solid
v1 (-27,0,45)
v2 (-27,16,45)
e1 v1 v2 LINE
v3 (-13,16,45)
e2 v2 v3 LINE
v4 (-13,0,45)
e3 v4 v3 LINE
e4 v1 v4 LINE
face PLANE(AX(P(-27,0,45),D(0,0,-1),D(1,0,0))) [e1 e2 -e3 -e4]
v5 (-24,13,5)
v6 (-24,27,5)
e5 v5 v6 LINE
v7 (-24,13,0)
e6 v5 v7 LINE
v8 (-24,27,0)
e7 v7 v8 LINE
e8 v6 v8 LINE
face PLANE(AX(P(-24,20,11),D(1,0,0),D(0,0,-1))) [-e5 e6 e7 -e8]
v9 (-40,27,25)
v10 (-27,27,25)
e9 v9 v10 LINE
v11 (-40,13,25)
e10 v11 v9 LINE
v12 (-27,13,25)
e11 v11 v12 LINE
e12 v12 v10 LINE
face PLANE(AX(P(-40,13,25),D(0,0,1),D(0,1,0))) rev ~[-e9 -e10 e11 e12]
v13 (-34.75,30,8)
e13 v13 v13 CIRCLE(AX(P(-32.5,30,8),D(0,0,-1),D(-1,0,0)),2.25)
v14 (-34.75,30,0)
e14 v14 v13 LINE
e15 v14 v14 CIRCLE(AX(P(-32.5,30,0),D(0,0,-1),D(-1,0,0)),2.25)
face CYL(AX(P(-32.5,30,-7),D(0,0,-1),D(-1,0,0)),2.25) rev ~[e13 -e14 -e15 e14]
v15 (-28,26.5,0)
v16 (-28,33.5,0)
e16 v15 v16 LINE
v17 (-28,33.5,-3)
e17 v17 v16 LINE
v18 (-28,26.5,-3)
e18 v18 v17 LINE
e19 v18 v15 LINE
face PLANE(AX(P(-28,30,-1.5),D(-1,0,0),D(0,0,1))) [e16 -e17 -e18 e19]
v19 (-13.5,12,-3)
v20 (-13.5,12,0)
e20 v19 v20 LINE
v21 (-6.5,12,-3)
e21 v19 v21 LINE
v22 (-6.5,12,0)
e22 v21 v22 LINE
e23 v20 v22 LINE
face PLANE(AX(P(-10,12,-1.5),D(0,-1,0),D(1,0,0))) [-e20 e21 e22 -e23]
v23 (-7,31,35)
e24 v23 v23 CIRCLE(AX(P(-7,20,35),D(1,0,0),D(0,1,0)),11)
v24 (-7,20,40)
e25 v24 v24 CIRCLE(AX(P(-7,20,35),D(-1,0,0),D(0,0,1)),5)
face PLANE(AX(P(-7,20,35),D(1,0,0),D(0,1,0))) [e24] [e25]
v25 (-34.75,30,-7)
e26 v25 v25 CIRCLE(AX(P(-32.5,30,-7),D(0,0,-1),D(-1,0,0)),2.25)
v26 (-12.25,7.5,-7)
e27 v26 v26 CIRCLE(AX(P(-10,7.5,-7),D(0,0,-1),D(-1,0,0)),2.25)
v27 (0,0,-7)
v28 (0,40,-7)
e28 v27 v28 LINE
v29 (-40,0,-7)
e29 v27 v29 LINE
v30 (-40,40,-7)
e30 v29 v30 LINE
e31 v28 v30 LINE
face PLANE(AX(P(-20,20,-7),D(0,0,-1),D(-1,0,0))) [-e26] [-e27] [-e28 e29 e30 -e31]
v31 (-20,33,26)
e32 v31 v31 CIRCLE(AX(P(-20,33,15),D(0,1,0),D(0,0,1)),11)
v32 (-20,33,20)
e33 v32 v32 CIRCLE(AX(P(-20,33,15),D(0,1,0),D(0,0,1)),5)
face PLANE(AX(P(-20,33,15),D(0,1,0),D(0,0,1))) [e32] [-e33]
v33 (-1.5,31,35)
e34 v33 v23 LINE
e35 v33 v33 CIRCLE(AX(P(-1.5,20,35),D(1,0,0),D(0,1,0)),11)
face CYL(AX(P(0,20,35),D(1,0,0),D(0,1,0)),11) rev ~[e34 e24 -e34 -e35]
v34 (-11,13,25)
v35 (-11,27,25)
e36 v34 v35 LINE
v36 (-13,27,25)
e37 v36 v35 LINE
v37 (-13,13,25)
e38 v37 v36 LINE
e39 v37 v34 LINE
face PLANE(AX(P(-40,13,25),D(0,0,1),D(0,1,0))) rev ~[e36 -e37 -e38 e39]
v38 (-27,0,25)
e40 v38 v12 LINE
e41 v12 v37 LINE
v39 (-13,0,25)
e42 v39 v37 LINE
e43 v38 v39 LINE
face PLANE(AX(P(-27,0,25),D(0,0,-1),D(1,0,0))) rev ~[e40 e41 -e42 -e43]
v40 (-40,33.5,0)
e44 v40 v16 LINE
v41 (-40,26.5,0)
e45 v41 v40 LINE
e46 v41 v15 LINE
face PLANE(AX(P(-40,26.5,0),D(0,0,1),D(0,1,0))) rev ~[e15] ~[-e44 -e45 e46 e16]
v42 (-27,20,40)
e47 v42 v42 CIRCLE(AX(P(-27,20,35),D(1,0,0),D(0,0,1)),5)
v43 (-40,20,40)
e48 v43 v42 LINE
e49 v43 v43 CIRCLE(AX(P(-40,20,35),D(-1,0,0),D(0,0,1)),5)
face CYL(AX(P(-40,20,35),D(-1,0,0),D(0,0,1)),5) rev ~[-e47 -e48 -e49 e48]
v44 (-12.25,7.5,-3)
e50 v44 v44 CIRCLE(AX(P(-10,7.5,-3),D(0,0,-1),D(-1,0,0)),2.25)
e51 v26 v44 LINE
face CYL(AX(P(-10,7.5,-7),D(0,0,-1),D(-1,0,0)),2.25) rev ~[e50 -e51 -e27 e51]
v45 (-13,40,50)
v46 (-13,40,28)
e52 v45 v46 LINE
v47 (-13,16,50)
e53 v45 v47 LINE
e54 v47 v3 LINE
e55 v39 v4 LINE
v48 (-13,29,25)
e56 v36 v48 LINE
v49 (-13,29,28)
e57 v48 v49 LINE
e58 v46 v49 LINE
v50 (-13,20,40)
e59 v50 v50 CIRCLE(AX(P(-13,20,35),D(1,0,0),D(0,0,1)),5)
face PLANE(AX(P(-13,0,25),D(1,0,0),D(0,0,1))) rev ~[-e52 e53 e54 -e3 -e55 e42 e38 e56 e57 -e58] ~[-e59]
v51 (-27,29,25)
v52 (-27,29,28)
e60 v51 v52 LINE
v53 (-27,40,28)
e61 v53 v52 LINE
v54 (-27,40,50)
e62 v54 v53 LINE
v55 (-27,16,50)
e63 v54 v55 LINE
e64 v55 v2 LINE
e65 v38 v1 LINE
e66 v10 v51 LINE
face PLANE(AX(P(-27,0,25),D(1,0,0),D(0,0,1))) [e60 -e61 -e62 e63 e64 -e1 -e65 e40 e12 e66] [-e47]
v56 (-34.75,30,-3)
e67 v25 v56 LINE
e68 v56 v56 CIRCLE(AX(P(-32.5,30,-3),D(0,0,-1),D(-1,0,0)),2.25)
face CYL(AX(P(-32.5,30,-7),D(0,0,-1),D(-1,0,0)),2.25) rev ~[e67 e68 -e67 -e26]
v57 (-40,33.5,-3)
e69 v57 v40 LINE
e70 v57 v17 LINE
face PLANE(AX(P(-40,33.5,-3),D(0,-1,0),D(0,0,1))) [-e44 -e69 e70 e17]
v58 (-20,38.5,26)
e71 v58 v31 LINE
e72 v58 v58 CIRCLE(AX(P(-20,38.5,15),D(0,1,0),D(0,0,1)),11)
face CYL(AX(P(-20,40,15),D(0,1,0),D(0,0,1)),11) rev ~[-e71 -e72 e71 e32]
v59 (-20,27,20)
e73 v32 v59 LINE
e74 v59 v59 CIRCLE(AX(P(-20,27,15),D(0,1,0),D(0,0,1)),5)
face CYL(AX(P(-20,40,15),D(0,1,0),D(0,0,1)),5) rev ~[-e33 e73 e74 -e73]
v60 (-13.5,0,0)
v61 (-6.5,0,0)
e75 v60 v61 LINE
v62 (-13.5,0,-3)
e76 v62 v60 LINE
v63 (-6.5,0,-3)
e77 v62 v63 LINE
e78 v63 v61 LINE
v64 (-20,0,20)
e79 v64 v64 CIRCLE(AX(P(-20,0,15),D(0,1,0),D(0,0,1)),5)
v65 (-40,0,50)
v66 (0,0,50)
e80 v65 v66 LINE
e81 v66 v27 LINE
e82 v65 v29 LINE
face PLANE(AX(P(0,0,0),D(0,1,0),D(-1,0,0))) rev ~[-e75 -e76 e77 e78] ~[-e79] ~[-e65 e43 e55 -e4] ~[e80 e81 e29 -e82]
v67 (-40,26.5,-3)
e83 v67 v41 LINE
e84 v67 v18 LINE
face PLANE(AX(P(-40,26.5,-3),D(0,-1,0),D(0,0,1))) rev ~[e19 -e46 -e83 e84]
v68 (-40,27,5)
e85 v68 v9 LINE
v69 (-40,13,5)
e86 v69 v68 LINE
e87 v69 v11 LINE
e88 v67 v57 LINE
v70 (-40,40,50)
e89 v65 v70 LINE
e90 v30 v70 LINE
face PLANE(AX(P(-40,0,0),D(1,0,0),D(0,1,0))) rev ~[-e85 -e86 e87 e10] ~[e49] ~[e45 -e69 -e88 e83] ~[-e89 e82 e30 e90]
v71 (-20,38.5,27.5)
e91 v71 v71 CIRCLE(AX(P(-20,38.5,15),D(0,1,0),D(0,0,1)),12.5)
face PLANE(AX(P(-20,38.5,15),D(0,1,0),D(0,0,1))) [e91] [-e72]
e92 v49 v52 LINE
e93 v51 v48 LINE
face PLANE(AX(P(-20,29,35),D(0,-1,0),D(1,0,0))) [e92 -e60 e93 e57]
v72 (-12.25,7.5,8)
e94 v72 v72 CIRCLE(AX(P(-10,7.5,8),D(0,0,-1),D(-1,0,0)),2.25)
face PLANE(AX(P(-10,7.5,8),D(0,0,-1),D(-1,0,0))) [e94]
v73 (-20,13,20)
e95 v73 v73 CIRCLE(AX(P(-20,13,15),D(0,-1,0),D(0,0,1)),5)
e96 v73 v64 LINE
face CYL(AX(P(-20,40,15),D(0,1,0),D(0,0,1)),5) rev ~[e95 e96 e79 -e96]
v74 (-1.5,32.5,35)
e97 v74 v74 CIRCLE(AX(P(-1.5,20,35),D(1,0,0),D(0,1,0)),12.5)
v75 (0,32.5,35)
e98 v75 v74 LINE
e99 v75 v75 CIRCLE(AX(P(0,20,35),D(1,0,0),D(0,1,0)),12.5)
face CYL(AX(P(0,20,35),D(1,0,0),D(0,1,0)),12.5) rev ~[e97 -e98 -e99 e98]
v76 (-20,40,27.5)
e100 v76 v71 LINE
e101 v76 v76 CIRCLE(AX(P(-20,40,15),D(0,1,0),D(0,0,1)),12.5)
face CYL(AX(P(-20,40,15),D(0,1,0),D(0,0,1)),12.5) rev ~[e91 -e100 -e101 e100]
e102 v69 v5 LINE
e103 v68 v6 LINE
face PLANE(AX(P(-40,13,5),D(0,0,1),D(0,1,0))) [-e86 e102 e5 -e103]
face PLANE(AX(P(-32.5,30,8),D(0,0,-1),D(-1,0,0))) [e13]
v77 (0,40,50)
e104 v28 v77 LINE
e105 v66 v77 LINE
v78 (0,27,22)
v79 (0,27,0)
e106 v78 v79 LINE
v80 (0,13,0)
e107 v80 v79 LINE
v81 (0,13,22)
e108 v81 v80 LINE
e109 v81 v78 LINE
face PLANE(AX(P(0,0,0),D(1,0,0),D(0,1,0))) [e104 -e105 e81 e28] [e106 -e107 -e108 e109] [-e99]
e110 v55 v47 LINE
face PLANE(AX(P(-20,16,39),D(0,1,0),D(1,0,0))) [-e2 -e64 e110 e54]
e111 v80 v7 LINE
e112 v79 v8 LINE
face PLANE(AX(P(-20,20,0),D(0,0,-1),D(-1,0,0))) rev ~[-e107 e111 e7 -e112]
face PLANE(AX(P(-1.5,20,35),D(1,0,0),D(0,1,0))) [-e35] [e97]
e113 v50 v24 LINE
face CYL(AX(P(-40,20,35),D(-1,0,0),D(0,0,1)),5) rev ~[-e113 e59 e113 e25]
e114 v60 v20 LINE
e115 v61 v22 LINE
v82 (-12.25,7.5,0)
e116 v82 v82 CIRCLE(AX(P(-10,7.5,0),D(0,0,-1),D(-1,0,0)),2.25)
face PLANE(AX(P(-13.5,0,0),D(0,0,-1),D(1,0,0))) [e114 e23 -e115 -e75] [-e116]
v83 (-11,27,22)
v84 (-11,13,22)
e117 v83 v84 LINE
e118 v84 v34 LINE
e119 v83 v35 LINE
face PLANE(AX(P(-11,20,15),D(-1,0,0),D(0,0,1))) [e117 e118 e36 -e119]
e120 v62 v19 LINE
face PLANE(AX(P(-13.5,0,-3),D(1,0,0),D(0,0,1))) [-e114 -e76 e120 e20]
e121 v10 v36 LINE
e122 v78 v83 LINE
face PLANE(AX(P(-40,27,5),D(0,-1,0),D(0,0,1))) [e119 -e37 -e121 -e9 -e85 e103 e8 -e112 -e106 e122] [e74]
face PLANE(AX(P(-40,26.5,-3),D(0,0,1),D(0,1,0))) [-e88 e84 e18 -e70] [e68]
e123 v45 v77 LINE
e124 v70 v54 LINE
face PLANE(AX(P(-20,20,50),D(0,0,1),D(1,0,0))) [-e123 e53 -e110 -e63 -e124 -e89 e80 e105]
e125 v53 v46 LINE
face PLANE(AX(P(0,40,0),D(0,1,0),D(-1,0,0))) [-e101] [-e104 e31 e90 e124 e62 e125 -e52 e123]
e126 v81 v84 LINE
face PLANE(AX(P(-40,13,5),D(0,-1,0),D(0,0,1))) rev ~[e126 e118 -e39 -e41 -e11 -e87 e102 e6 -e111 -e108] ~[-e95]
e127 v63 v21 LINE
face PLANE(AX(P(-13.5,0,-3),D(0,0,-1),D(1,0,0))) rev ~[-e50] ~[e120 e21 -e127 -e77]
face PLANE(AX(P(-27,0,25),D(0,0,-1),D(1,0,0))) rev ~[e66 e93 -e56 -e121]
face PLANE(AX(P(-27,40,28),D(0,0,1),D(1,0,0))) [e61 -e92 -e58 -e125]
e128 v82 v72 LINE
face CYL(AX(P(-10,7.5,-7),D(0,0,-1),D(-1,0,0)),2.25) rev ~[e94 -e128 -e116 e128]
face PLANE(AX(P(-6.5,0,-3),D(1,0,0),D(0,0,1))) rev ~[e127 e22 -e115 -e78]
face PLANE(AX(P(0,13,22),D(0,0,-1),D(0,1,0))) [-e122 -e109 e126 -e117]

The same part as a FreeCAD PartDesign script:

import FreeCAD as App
import Part
import Sketcher
from FreeCAD import Vector


def add_polygon(sketch, points):
    """Adds a closed chain of lines whose ends are joined by coincident constraints."""
    first, n = sketch.GeometryCount, len(points)
    for a, b in zip(points, points[1:] + points[:1]):
        sketch.addGeometry(Part.LineSegment(App.Vector(*a, 0), App.Vector(*b, 0)), False)
    for i in range(n):
        sketch.addConstraint(Sketcher.Constraint("Coincident", first + i, 2, first + (i + 1) % n, 1))

doc = App.newDocument("Part")
params = doc.addObject("Spreadsheet::Sheet", "Params")
for row, (alias, value) in enumerate([
    ("sketch1_width", "40 mm"),
    ("pad1_length", "50 mm"),
    ("sketch2_diameter", "10 mm"),
    ("sketch3_diameter", "10 mm"),
    ("sketch4_width", "14 mm"),
    ("sketch4_height", "20 mm"),
    ("pocket3_length", "29 mm"),
    ("sketch5_width", "14 mm"),
    ("sketch5_height", "20 mm"),
    ("pocket4_length", "29 mm"),
    ("sketch6_width", "14 mm"),
    ("sketch6_height", "22 mm"),
    ("pocket5_length", "24 mm"),
    ("sketch7_width", "14 mm"),
    ("sketch7_height", "22 mm"),
    ("pocket6_length", "24 mm"),
    ("sketch8_diameter", "22 mm"),
    ("pocket7_length", "7 mm"),
    ("sketch9_diameter", "25 mm"),
    ("pocket8_length", "1.5 mm"),
    ("sketch10_diameter", "22 mm"),
    ("pocket9_length", "7 mm"),
    ("sketch11_diameter", "25 mm"),
    ("pocket10_length", "1.5 mm"),
    ("sketch12_width", "40 mm"),
    ("pad2_length", "7 mm"),
    ("sketch13_diameter", "4.5 mm"),
    ("pocket11_length", "15 mm"),
    ("sketch14_width", "7 mm"),
    ("sketch14_height", "3 mm"),
    ("pocket12_length", "12 mm"),
    ("sketch15_width", "7 mm"),
    ("sketch15_height", "3 mm"),
    ("pocket13_length", "12 mm"),
], start=1):
    params.set(f"A{row}", alias)
    params.set(f"B{row}", "=" + value)
    params.setAlias(f"B{row}", alias)

body = doc.addObject("PartDesign::Body", "Body")

sketch1 = body.newObject("Sketcher::SketchObject", "Sketch")
sketch1.AttachmentSupport = (doc.getObject("XY_Plane"), [""])
sketch1.MapMode = "FlatFace"
add_polygon(sketch1, [(-40, 40), (-40, 0), (0, 0), (0, 40)])
sketch1.addConstraint(Sketcher.Constraint("Vertical", 0))
sketch1.addConstraint(Sketcher.Constraint("Horizontal", 1))
sketch1.addConstraint(Sketcher.Constraint("Vertical", 2))
sketch1.addConstraint(Sketcher.Constraint("Horizontal", 3))
sketch1.addConstraint(Sketcher.Constraint("Coincident", 1, 2, -1, 1))
sketch1.addConstraint(Sketcher.Constraint("Equal", 3, 0))
sketch1.addConstraint(Sketcher.Constraint("DistanceX", 1, 1, 1, 2, 40.0))
sketch1.setExpression("Constraints[10]", "Params.sketch1_width")
pad1 = body.newObject("PartDesign::Pad", "Pad")
pad1.Profile = sketch1
pad1.setExpression("Length", "Params.pad1_length")

sketch2 = body.newObject("Sketcher::SketchObject", "Sketch001")
sketch2.AttachmentSupport = (doc.getObject("XZ_Plane"), [""])
sketch2.MapMode = "FlatFace"
sketch2.AttachmentOffset = App.Placement(Vector(0, 0, -40), App.Rotation())
sketch2.addGeometry(Part.Circle(Vector(-20, 15, 0), Vector(0, 0, 1), 5), False)
sketch2.addConstraint(Sketcher.Constraint("Diameter", 0, 10.0))
sketch2.addConstraint(Sketcher.Constraint("DistanceX", 0, 3, -1, 1, 20.0))
sketch2.addConstraint(Sketcher.Constraint("DistanceY", -1, 1, 0, 3, 15.0))
sketch2.setExpression("Constraints[0]", "Params.sketch2_diameter")
pocket1 = body.newObject("PartDesign::Pocket", "Pocket")
pocket1.Profile = sketch2
pocket1.Type = "ThroughAll"
pocket1.Reversed = True

sketch3 = body.newObject("Sketcher::SketchObject", "Sketch002")
sketch3.AttachmentSupport = (doc.getObject("YZ_Plane"), [""])
sketch3.MapMode = "FlatFace"
sketch3.AttachmentOffset = App.Placement(Vector(0, 0, -40), App.Rotation())
sketch3.addGeometry(Part.Circle(Vector(20, 35, 0), Vector(0, 0, 1), 5), False)
sketch3.addConstraint(Sketcher.Constraint("Diameter", 0, 10.0))
sketch3.addConstraint(Sketcher.Constraint("DistanceX", -1, 1, 0, 3, 20.0))
sketch3.addConstraint(Sketcher.Constraint("DistanceY", -1, 1, 0, 3, 35.0))
sketch3.setExpression("Constraints[0]", "Params.sketch3_diameter")
pocket2 = body.newObject("PartDesign::Pocket", "Pocket001")
pocket2.Profile = sketch3
pocket2.Type = "ThroughAll"
pocket2.Reversed = True

sketch4 = body.newObject("Sketcher::SketchObject", "Sketch003")
sketch4.AttachmentSupport = (doc.getObject("YZ_Plane"), [""])
sketch4.MapMode = "FlatFace"
sketch4.AttachmentOffset = App.Placement(Vector(0, 0, -40), App.Rotation())
add_polygon(sketch4, [(27, 5), (13, 5), (13, 25), (27, 25)])
sketch4.addConstraint(Sketcher.Constraint("Horizontal", 0))
sketch4.addConstraint(Sketcher.Constraint("Vertical", 1))
sketch4.addConstraint(Sketcher.Constraint("Horizontal", 2))
sketch4.addConstraint(Sketcher.Constraint("Vertical", 3))
sketch4.addConstraint(Sketcher.Constraint("DistanceX", 0, 2, 0, 1, 14.0))
sketch4.addConstraint(Sketcher.Constraint("DistanceY", 1, 1, 1, 2, 20.0))
sketch4.addConstraint(Sketcher.Constraint("DistanceX", -1, 1, 0, 2, 13.0))
sketch4.addConstraint(Sketcher.Constraint("DistanceY", -1, 1, 0, 2, 5.0))
sketch4.setExpression("Constraints[8]", "Params.sketch4_width")
sketch4.setExpression("Constraints[9]", "Params.sketch4_height")
pocket3 = body.newObject("PartDesign::Pocket", "Pocket002")
pocket3.Profile = sketch4
pocket3.setExpression("Length", "Params.pocket3_length")
pocket3.Reversed = True

sketch5 = body.newObject("Sketcher::SketchObject", "Sketch004")
sketch5.AttachmentSupport = (doc.getObject("XZ_Plane"), [""])
sketch5.MapMode = "FlatFace"
add_polygon(sketch5, [(-27, 45), (-27, 25), (-13, 25), (-13, 45)])
sketch5.addConstraint(Sketcher.Constraint("Vertical", 0))
sketch5.addConstraint(Sketcher.Constraint("Horizontal", 1))
sketch5.addConstraint(Sketcher.Constraint("Vertical", 2))
sketch5.addConstraint(Sketcher.Constraint("Horizontal", 3))
sketch5.addConstraint(Sketcher.Constraint("DistanceX", 1, 1, 1, 2, 14.0))
sketch5.addConstraint(Sketcher.Constraint("DistanceY", 0, 2, 0, 1, 20.0))
sketch5.addConstraint(Sketcher.Constraint("DistanceX", 0, 2, -1, 1, 27.0))
sketch5.addConstraint(Sketcher.Constraint("DistanceY", -1, 1, 0, 2, 25.0))
sketch5.setExpression("Constraints[8]", "Params.sketch5_width")
sketch5.setExpression("Constraints[9]", "Params.sketch5_height")
pocket4 = body.newObject("PartDesign::Pocket", "Pocket003")
pocket4.Profile = sketch5
pocket4.setExpression("Length", "Params.pocket4_length")

sketch6 = body.newObject("Sketcher::SketchObject", "Sketch005")
sketch6.AttachmentSupport = (doc.getObject("YZ_Plane"), [""])
sketch6.MapMode = "FlatFace"
add_polygon(sketch6, [(27, 22), (13, 22), (13, 0), (27, 0)])
sketch6.addConstraint(Sketcher.Constraint("Horizontal", 0))
sketch6.addConstraint(Sketcher.Constraint("Vertical", 1))
sketch6.addConstraint(Sketcher.Constraint("Horizontal", 2))
sketch6.addConstraint(Sketcher.Constraint("Vertical", 3))
sketch6.addConstraint(Sketcher.Constraint("PointOnObject", 1, 2, -1))
sketch6.addConstraint(Sketcher.Constraint("DistanceX", 0, 2, 0, 1, 14.0))
sketch6.addConstraint(Sketcher.Constraint("DistanceY", 1, 2, 1, 1, 22.0))
sketch6.addConstraint(Sketcher.Constraint("DistanceX", -1, 1, 0, 2, 13.0))
sketch6.setExpression("Constraints[9]", "Params.sketch6_width")
sketch6.setExpression("Constraints[10]", "Params.sketch6_height")
pocket5 = body.newObject("PartDesign::Pocket", "Pocket004")
pocket5.Profile = sketch6
pocket5.setExpression("Length", "Params.pocket5_length")

sketch7 = body.newObject("Sketcher::SketchObject", "Sketch006")
sketch7.AttachmentSupport = (doc.getObject("XZ_Plane"), [""])
sketch7.MapMode = "FlatFace"
sketch7.AttachmentOffset = App.Placement(Vector(0, 0, -40), App.Rotation())
add_polygon(sketch7, [(-27, 28), (-27, 50), (-13, 50), (-13, 28)])
sketch7.addConstraint(Sketcher.Constraint("Vertical", 0))
sketch7.addConstraint(Sketcher.Constraint("Horizontal", 1))
sketch7.addConstraint(Sketcher.Constraint("Vertical", 2))
sketch7.addConstraint(Sketcher.Constraint("Horizontal", 3))
sketch7.addConstraint(Sketcher.Constraint("DistanceX", 1, 1, 1, 2, 14.0))
sketch7.addConstraint(Sketcher.Constraint("DistanceY", 0, 1, 0, 2, 22.0))
sketch7.addConstraint(Sketcher.Constraint("DistanceX", 0, 2, -1, 1, 27.0))
sketch7.addConstraint(Sketcher.Constraint("DistanceY", -1, 1, 0, 2, 50.0))
sketch7.setExpression("Constraints[8]", "Params.sketch7_width")
sketch7.setExpression("Constraints[9]", "Params.sketch7_height")
pocket6 = body.newObject("PartDesign::Pocket", "Pocket005")
pocket6.Profile = sketch7
pocket6.setExpression("Length", "Params.pocket6_length")
pocket6.Reversed = True

sketch8 = body.newObject("Sketcher::SketchObject", "Sketch007")
sketch8.AttachmentSupport = (doc.getObject("YZ_Plane"), [""])
sketch8.MapMode = "FlatFace"
sketch8.addGeometry(Part.Circle(Vector(20, 35, 0), Vector(0, 0, 1), 11), False)
sketch8.addConstraint(Sketcher.Constraint("Diameter", 0, 22.0))
sketch8.addConstraint(Sketcher.Constraint("DistanceX", -1, 1, 0, 3, 20.0))
sketch8.addConstraint(Sketcher.Constraint("DistanceY", -1, 1, 0, 3, 35.0))
sketch8.setExpression("Constraints[0]", "Params.sketch8_diameter")
pocket7 = body.newObject("PartDesign::Pocket", "Pocket006")
pocket7.Profile = sketch8
pocket7.setExpression("Length", "Params.pocket7_length")

sketch9 = body.newObject("Sketcher::SketchObject", "Sketch008")
sketch9.AttachmentSupport = (doc.getObject("YZ_Plane"), [""])
sketch9.MapMode = "FlatFace"
sketch9.addGeometry(Part.Circle(Vector(20, 35, 0), Vector(0, 0, 1), 12.5), False)
sketch9.addConstraint(Sketcher.Constraint("Diameter", 0, 25.0))
sketch9.addConstraint(Sketcher.Constraint("DistanceX", -1, 1, 0, 3, 20.0))
sketch9.addConstraint(Sketcher.Constraint("DistanceY", -1, 1, 0, 3, 35.0))
sketch9.setExpression("Constraints[0]", "Params.sketch9_diameter")
pocket8 = body.newObject("PartDesign::Pocket", "Pocket007")
pocket8.Profile = sketch9
pocket8.setExpression("Length", "Params.pocket8_length")

sketch10 = body.newObject("Sketcher::SketchObject", "Sketch009")
sketch10.AttachmentSupport = (doc.getObject("XZ_Plane"), [""])
sketch10.MapMode = "FlatFace"
sketch10.AttachmentOffset = App.Placement(Vector(0, 0, -40), App.Rotation())
sketch10.addGeometry(Part.Circle(Vector(-20, 15, 0), Vector(0, 0, 1), 11), False)
sketch10.addConstraint(Sketcher.Constraint("Diameter", 0, 22.0))
sketch10.addConstraint(Sketcher.Constraint("DistanceX", 0, 3, -1, 1, 20.0))
sketch10.addConstraint(Sketcher.Constraint("DistanceY", -1, 1, 0, 3, 15.0))
sketch10.setExpression("Constraints[0]", "Params.sketch10_diameter")
pocket9 = body.newObject("PartDesign::Pocket", "Pocket008")
pocket9.Profile = sketch10
pocket9.setExpression("Length", "Params.pocket9_length")
pocket9.Reversed = True

sketch11 = body.newObject("Sketcher::SketchObject", "Sketch010")
sketch11.AttachmentSupport = (doc.getObject("XZ_Plane"), [""])
sketch11.MapMode = "FlatFace"
sketch11.AttachmentOffset = App.Placement(Vector(0, 0, -40), App.Rotation())
sketch11.addGeometry(Part.Circle(Vector(-20, 15, 0), Vector(0, 0, 1), 12.5), False)
sketch11.addConstraint(Sketcher.Constraint("Diameter", 0, 25.0))
sketch11.addConstraint(Sketcher.Constraint("DistanceX", 0, 3, -1, 1, 20.0))
sketch11.addConstraint(Sketcher.Constraint("DistanceY", -1, 1, 0, 3, 15.0))
sketch11.setExpression("Constraints[0]", "Params.sketch11_diameter")
pocket10 = body.newObject("PartDesign::Pocket", "Pocket009")
pocket10.Profile = sketch11
pocket10.setExpression("Length", "Params.pocket10_length")
pocket10.Reversed = True

sketch12 = body.newObject("Sketcher::SketchObject", "Sketch011")
sketch12.AttachmentSupport = (doc.getObject("XY_Plane"), [""])
sketch12.MapMode = "FlatFace"
add_polygon(sketch12, [(0, 40), (0, 0), (-40, 0), (-40, 40)])
sketch12.addConstraint(Sketcher.Constraint("Vertical", 0))
sketch12.addConstraint(Sketcher.Constraint("Horizontal", 1))
sketch12.addConstraint(Sketcher.Constraint("Vertical", 2))
sketch12.addConstraint(Sketcher.Constraint("Horizontal", 3))
sketch12.addConstraint(Sketcher.Constraint("Coincident", 0, 2, -1, 1))
sketch12.addConstraint(Sketcher.Constraint("Equal", 3, 0))
sketch12.addConstraint(Sketcher.Constraint("DistanceX", 1, 2, 1, 1, 40.0))
sketch12.setExpression("Constraints[10]", "Params.sketch12_width")
pad2 = body.newObject("PartDesign::Pad", "Pad001")
pad2.Profile = sketch12
pad2.setExpression("Length", "Params.pad2_length")
pad2.Reversed = True

sketch13 = body.newObject("Sketcher::SketchObject", "Sketch012")
sketch13.AttachmentSupport = (doc.getObject("XY_Plane"), [""])
sketch13.MapMode = "FlatFace"
sketch13.AttachmentOffset = App.Placement(Vector(0, 0, -7), App.Rotation())
sketch13.addGeometry(Part.Circle(Vector(-10, 7.5, 0), Vector(0, 0, 1), 2.25), False)
sketch13.addGeometry(Part.Circle(Vector(-32.5, 30, 0), Vector(0, 0, 1), 2.25), False)
sketch13.addConstraint(Sketcher.Constraint("Equal", 0, 1))
sketch13.addConstraint(Sketcher.Constraint("Diameter", 0, 4.5))
sketch13.addConstraint(Sketcher.Constraint("DistanceX", 0, 3, -1, 1, 10.0))
sketch13.addConstraint(Sketcher.Constraint("DistanceY", -1, 1, 1, 3, 30.0))
sketch13.addConstraint(Sketcher.Constraint("DistanceY", -1, 1, 0, 3, 7.5))
sketch13.addConstraint(Sketcher.Constraint("DistanceX", 1, 3, -1, 1, 32.5))
sketch13.setExpression("Constraints[1]", "Params.sketch13_diameter")
pocket11 = body.newObject("PartDesign::Pocket", "Pocket010")
pocket11.Profile = sketch13
pocket11.setExpression("Length", "Params.pocket11_length")
pocket11.Reversed = True

sketch14 = body.newObject("Sketcher::SketchObject", "Sketch013")
sketch14.AttachmentSupport = (doc.getObject("YZ_Plane"), [""])
sketch14.MapMode = "FlatFace"
sketch14.AttachmentOffset = App.Placement(Vector(0, 0, -40), App.Rotation())
add_polygon(sketch14, [(33.5, -3), (26.5, -3), (26.5, 0), (33.5, 0)])
sketch14.addConstraint(Sketcher.Constraint("Horizontal", 0))
sketch14.addConstraint(Sketcher.Constraint("Vertical", 1))
sketch14.addConstraint(Sketcher.Constraint("Horizontal", 2))
sketch14.addConstraint(Sketcher.Constraint("Vertical", 3))
sketch14.addConstraint(Sketcher.Constraint("PointOnObject", 1, 2, -1))
sketch14.addConstraint(Sketcher.Constraint("DistanceX", 0, 2, 0, 1, 7.0))
sketch14.addConstraint(Sketcher.Constraint("DistanceY", 1, 1, 1, 2, 3.0))
sketch14.addConstraint(Sketcher.Constraint("DistanceX", -1, 1, 0, 2, 26.5))
sketch14.setExpression("Constraints[9]", "Params.sketch14_width")
sketch14.setExpression("Constraints[10]", "Params.sketch14_height")
pocket12 = body.newObject("PartDesign::Pocket", "Pocket011")
pocket12.Profile = sketch14
pocket12.setExpression("Length", "Params.pocket12_length")
pocket12.Reversed = True

sketch15 = body.newObject("Sketcher::SketchObject", "Sketch014")
sketch15.AttachmentSupport = (doc.getObject("XZ_Plane"), [""])
sketch15.MapMode = "FlatFace"
add_polygon(sketch15, [(-13.5, 0), (-13.5, -3), (-6.5, -3), (-6.5, 0)])
sketch15.addConstraint(Sketcher.Constraint("Vertical", 0))
sketch15.addConstraint(Sketcher.Constraint("Horizontal", 1))
sketch15.addConstraint(Sketcher.Constraint("Vertical", 2))
sketch15.addConstraint(Sketcher.Constraint("Horizontal", 3))
sketch15.addConstraint(Sketcher.Constraint("PointOnObject", 2, 2, -1))
sketch15.addConstraint(Sketcher.Constraint("DistanceX", 1, 1, 1, 2, 7.0))
sketch15.addConstraint(Sketcher.Constraint("DistanceY", 0, 2, 0, 1, 3.0))
sketch15.addConstraint(Sketcher.Constraint("DistanceX", 0, 2, -1, 1, 13.5))
sketch15.setExpression("Constraints[9]", "Params.sketch15_width")
sketch15.setExpression("Constraints[10]", "Params.sketch15_height")
pocket13 = body.newObject("PartDesign::Pocket", "Pocket012")
pocket13.Profile = sketch15
pocket13.setExpression("Length", "Params.pocket13_length")

doc.recompute()
